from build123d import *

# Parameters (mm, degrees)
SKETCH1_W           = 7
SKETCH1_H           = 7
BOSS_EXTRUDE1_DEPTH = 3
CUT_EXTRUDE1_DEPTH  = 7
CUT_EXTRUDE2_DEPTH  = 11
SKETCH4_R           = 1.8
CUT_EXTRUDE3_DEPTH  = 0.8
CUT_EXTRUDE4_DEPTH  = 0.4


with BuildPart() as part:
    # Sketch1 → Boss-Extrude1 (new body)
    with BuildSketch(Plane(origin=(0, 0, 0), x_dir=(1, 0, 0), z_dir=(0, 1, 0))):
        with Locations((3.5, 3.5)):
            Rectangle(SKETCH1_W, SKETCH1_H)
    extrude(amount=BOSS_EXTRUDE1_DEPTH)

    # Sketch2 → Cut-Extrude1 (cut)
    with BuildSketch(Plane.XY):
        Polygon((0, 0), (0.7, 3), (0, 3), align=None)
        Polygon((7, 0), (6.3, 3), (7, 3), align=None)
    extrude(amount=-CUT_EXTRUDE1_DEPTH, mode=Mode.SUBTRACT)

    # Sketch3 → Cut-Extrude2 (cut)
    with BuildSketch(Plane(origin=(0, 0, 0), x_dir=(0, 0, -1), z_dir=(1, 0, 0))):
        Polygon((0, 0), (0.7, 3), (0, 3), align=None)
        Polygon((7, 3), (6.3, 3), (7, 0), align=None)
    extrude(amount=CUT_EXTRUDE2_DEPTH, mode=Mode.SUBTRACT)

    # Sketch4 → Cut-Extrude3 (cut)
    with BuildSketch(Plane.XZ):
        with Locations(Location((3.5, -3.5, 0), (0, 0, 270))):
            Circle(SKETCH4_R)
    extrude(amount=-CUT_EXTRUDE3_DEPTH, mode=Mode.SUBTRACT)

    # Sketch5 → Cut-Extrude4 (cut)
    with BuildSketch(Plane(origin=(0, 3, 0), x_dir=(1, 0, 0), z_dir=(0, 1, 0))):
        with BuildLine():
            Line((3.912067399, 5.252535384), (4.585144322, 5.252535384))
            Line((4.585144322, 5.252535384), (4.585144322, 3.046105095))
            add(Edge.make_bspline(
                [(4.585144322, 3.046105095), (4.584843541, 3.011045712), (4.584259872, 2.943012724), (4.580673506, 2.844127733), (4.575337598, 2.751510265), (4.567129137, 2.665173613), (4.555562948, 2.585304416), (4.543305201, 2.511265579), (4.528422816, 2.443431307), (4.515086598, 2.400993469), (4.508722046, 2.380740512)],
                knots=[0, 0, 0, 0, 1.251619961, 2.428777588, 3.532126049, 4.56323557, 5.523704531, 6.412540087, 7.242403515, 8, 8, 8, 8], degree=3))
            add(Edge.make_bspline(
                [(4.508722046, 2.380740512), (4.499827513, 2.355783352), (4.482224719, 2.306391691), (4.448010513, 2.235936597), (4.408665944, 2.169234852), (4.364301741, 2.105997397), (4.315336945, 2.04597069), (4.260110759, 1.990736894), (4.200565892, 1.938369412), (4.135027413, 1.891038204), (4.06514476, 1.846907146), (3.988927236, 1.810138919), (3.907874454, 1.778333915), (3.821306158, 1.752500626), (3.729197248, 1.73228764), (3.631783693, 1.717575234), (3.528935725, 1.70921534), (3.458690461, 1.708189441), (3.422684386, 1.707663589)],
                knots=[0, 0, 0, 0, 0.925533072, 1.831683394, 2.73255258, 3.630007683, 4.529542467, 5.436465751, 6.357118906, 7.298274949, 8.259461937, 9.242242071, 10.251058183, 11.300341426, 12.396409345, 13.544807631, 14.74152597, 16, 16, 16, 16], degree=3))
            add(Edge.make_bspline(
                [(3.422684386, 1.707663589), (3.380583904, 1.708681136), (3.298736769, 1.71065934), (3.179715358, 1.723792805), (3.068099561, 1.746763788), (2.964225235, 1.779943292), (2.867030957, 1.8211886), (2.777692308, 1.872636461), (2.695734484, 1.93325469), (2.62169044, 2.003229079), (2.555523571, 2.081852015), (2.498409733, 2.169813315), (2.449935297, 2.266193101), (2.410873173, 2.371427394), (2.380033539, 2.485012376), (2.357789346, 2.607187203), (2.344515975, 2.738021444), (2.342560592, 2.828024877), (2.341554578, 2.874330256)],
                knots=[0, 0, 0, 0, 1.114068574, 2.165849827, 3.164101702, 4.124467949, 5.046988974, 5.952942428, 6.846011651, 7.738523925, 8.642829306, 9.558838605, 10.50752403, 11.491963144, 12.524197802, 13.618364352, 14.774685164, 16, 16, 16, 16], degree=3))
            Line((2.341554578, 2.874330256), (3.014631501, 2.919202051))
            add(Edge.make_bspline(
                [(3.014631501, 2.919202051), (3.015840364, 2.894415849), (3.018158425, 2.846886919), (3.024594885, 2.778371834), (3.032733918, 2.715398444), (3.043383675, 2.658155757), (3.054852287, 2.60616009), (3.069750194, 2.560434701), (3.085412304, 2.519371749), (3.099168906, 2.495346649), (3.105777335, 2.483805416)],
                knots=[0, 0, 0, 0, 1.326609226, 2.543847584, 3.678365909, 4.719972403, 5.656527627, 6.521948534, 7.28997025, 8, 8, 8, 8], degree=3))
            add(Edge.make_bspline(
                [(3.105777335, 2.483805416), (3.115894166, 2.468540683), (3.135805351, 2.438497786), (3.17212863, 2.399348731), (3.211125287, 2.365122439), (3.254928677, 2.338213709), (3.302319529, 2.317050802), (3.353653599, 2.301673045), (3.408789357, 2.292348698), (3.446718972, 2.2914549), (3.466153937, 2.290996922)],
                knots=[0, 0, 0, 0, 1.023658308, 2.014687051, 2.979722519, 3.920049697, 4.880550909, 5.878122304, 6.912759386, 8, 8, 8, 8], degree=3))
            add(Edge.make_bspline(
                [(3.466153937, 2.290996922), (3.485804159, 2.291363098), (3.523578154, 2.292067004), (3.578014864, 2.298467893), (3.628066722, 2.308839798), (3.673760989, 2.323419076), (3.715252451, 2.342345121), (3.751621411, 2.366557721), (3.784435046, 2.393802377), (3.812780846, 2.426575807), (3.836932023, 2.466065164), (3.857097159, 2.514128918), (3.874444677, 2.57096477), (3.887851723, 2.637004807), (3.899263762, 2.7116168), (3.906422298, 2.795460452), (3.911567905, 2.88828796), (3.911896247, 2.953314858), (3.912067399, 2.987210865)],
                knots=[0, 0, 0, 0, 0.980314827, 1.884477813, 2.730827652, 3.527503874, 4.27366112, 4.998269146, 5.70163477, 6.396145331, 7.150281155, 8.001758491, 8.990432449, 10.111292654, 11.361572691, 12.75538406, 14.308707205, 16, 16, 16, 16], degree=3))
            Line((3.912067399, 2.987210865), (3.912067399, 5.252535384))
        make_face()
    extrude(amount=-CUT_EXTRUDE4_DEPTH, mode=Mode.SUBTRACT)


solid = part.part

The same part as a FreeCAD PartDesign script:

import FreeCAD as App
import Part
import Sketcher

V = App.Vector
Q = App.Units.Quantity


def add_polygon(sketch, points):
    """Adds a closed chain of lines whose ends are joined by coincident constraints."""
    first, n = sketch.GeometryCount, len(points)
    for a, b in zip(points, points[1:] + points[:1]):
        sketch.addGeometry(Part.LineSegment(App.Vector(*a, 0), App.Vector(*b, 0)), False)
    for i in range(n):
        sketch.addConstraint(Sketcher.Constraint("Coincident", first + i, 2, first + (i + 1) % n, 1))

doc = App.newDocument("Part")
body = doc.addObject("PartDesign::Body", "Body")

# Sketch on XZ plane
sketch1 = doc.addObject("Sketcher::SketchObject", "Sketch")
body.addObject(sketch1)
sketch1.AttachmentSupport = (doc.XZ_Plane, [""])
sketch1.MapMode = "FlatFace"
add_polygon(sketch1, [(0, -7), (0, 0), (7, 0), (7, -7)])  # lines 0-3
sketch1.addConstraint([
    Sketcher.Constraint("Vertical", 0),
    Sketcher.Constraint("Horizontal", 1),
    Sketcher.Constraint("Vertical", 2),
    Sketcher.Constraint("Horizontal", 3),
    Sketcher.Constraint("Coincident", 0, 2, -1, 1),
    Sketcher.Constraint("Equal", 3, 0),
    Sketcher.Constraint("DistanceX", 1, 1, 1, 2, Q("7 mm")),
])
pad1 = doc.addObject("PartDesign::Pad", "Pad")
body.addObject(pad1)
pad1.Profile = sketch1
pad1.Length = 3
pad1.Reversed = True

# Sketch on XY plane
sketch2 = doc.addObject("Sketcher::SketchObject", "Sketch001")
body.addObject(sketch2)
sketch2.AttachmentSupport = (doc.XY_Plane, [""])
sketch2.MapMode = "FlatFace"
add_polygon(sketch2, [(0, 0), (0.7, 3), (0, 3)])  # lines 0-2
add_polygon(sketch2, [(6.3, 3), (7, 0), (7, 3)])  # lines 3-5
sketch2.addConstraint([
    Sketcher.Constraint("Horizontal", 1),
    Sketcher.Constraint("Vertical", 2),
    Sketcher.Constraint("Vertical", 4),
    Sketcher.Constraint("Horizontal", 5),
    Sketcher.Constraint("Coincident", 2, 2, -1, 1),
    Sketcher.Constraint("PointOnObject", 3, 2, -1),
    Sketcher.Constraint("Horizontal", 1, 2, 4, 2),
    Sketcher.Constraint("Equal", 1, 5),
    Sketcher.Constraint("DistanceY", 2, 2, 2, 1, Q("3 mm")),
    Sketcher.Constraint("DistanceX", 1, 2, 1, 1, Q("0.7 mm")),
    Sketcher.Constraint("DistanceX", -1, 1, 3, 2, Q("7 mm")),
])
pocket1 = doc.addObject("PartDesign::Pocket", "Pocket")
body.addObject(pocket1)
pocket1.Profile = sketch2
pocket1.Length = 7

# Sketch on YZ plane
sketch3 = doc.addObject("Sketcher::SketchObject", "Sketch002")
body.addObject(sketch3)
sketch3.AttachmentSupport = (doc.YZ_Plane, [""])
sketch3.MapMode = "FlatFace"
add_polygon(sketch3, [(0, 0), (3, -0.7), (3, 0)])  # lines 0-2
add_polygon(sketch3, [(3, -7), (3, -6.3), (0, -7)])  # lines 3-5
sketch3.addConstraint([
    Sketcher.Constraint("Vertical", 1),
    Sketcher.Constraint("Horizontal", 2),
    Sketcher.Constraint("Vertical", 3),
    Sketcher.Constraint("Horizontal", 5),
    Sketcher.Constraint("Coincident", 2, 2, -1, 1),
    Sketcher.Constraint("PointOnObject", 4, 2, -2),
    Sketcher.Constraint("Vertical", 1, 2, 3, 2),
    Sketcher.Constraint("Equal", 1, 3),
    Sketcher.Constraint("DistanceX", 2, 2, 2, 1, Q("3 mm")),
    Sketcher.Constraint("DistanceY", 1, 1, 1, 2, Q("0.7 mm")),
    Sketcher.Constraint("DistanceY", 4, 2, -1, 1, Q("7 mm")),
])
pocket2 = doc.addObject("PartDesign::Pocket", "Pocket001")
body.addObject(pocket2)
pocket2.Profile = sketch3
pocket2.Length = 11
pocket2.Reversed = True

# Sketch on XZ plane
sketch4 = doc.addObject("Sketcher::SketchObject", "Sketch003")
body.addObject(sketch4)
sketch4.AttachmentSupport = (doc.XZ_Plane, [""])
sketch4.MapMode = "FlatFace"
sketch4.addGeometry(Part.Circle(V(3.5, -3.5, 0), V(0, 0, 1), 1.8), False)
sketch4.addConstraint([
    Sketcher.Constraint("Diameter", 0, Q("3.6 mm")),
    Sketcher.Constraint("DistanceX", -1, 1, 0, 3, Q("3.5 mm")),
    Sketcher.Constraint("DistanceY", 0, 3, -1, 1, Q("3.5 mm")),
])
pocket3 = doc.addObject("PartDesign::Pocket", "Pocket002")
body.addObject(pocket3)
pocket3.Profile = sketch4
pocket3.Length = 0.8

# Sketch on XZ plane
sketch5 = doc.addObject("Sketcher::SketchObject", "Sketch004")
body.addObject(sketch5)
sketch5.AttachmentSupport = (doc.XZ_Plane, [""])
sketch5.MapMode = "FlatFace"
sketch5.AttachmentOffset = App.Placement(V(0, 0, -3), App.Rotation())
sketch5.addGeometry([
    Part.LineSegment(V(4.585144, -5.252535, 0), V(3.912067, -5.252535, 0)),  # 0
    Part.LineSegment(V(3.912067, -5.252535, 0), V(3.912067, -2.987211, 0)),  # 1
    Part.BSplineCurve([V(3.466154, -2.290997, 0), V(3.485804, -2.291363, 0), V(3.523578, -2.292067, 0), V(3.578015, -2.298468, 0), V(3.628067, -2.30884, 0), V(3.673761, -2.323419, 0), V(3.715252, -2.342345, 0), V(3.751621, -2.366558, 0), V(3.784435, -2.393802, 0), V(3.812781, -2.426576, 0), V(3.836932, -2.466065, 0), V(3.857097, -2.514129, 0), V(3.874445, -2.570965, 0), V(3.887852, -2.637005, 0), V(3.899264, -2.711617, 0), V(3.906422, -2.79546, 0), V(3.911568, -2.888288, 0), V(3.911896, -2.953315, 0), V(3.912067, -2.987211, 0)], [4, 1, 1, 1, 1, 1, 1, 1, 1, 1, 1, 1, 1, 1, 1, 1, 4], [0, 0.980314827, 1.884477813, 2.730827652, 3.527503874, 4.27366112, 4.998269146, 5.70163477, 6.396145331, 7.150281155, 8.001758491, 8.990432449, 10.111292654, 11.361572691, 12.75538406, 14.308707205, 16], False, 3, [1, 1, 1, 1, 1, 1, 1, 1, 1, 1, 1, 1, 1, 1, 1, 1, 1, 1, 1], False),  # 2
    Part.BSplineCurve([V(3.105777, -2.483805, 0), V(3.115894, -2.468541, 0), V(3.135805, -2.438498, 0), V(3.172129, -2.399349, 0), V(3.211125, -2.365122, 0), V(3.254929, -2.338214, 0), V(3.30232, -2.317051, 0), V(3.353654, -2.301673, 0), V(3.408789, -2.292349, 0), V(3.446719, -2.291455, 0), V(3.466154, -2.290997, 0)], [4, 1, 1, 1, 1, 1, 1, 1, 4], [0, 1.023658308, 2.014687051, 2.979722519, 3.920049697, 4.880550909, 5.878122304, 6.912759386, 8], False, 3, [1, 1, 1, 1, 1, 1, 1, 1, 1, 1, 1], False),  # 3
    Part.BSplineCurve([V(3.014632, -2.919202, 0), V(3.01584, -2.894416, 0), V(3.018158, -2.846887, 0), V(3.024595, -2.778372, 0), V(3.032734, -2.715398, 0), V(3.043384, -2.658156, 0), V(3.054852, -2.60616, 0), V(3.06975, -2.560435, 0), V(3.085412, -2.519372, 0), V(3.099169, -2.495347, 0), V(3.105777, -2.483805, 0)], [4, 1, 1, 1, 1, 1, 1, 1, 4], [0, 1.326609226, 2.543847584, 3.678365909, 4.719972403, 5.656527627, 6.521948534, 7.28997025, 8], False, 3, [1, 1, 1, 1, 1, 1, 1, 1, 1, 1, 1], False),  # 4
    Part.LineSegment(V(3.014632, -2.919202, 0), V(2.341555, -2.87433, 0)),  # 5
    Part.BSplineCurve([V(3.422684, -1.707664, 0), V(3.380584, -1.708681, 0), V(3.298737, -1.710659, 0), V(3.179715, -1.723793, 0), V(3.0681, -1.746764, 0), V(2.964225, -1.779943, 0), V(2.867031, -1.821189, 0), V(2.777692, -1.872636, 0), V(2.695734, -1.933255, 0), V(2.62169, -2.003229, 0), V(2.555524, -2.081852, 0), V(2.49841, -2.169813, 0), V(2.449935, -2.266193, 0), V(2.410873, -2.371427, 0), V(2.380034, -2.485012, 0), V(2.357789, -2.607187, 0), V(2.344516, -2.738021, 0), V(2.342561, -2.828025, 0), V(2.341555, -2.87433, 0)], [4, 1, 1, 1, 1, 1, 1, 1, 1, 1, 1, 1, 1, 1, 1, 1, 4], [0, 1.114068574, 2.165849827, 3.164101702, 4.124467949, 5.046988974, 5.952942428, 6.846011651, 7.738523925, 8.642829306, 9.558838605, 10.50752403, 11.491963144, 12.524197802, 13.618364352, 14.774685164, 16], False, 3, [1, 1, 1, 1, 1, 1, 1, 1, 1, 1, 1, 1, 1, 1, 1, 1, 1, 1, 1], False),  # 6
    Part.BSplineCurve([V(4.508722, -2.380741, 0), V(4.499828, -2.355783, 0), V(4.482225, -2.306392, 0), V(4.448011, -2.235937, 0), V(4.408666, -2.169235, 0), V(4.364302, -2.105997, 0), V(4.315337, -2.045971, 0), V(4.260111, -1.990737, 0), V(4.200566, -1.938369, 0), V(4.135027, -1.891038, 0), V(4.065145, -1.846907, 0), V(3.988927, -1.810139, 0), V(3.907874, -1.778334, 0), V(3.821306, -1.752501, 0), V(3.729197, -1.732288, 0), V(3.631784, -1.717575, 0), V(3.528936, -1.709215, 0), V(3.45869, -1.708189, 0), V(3.422684, -1.707664, 0)], [4, 1, 1, 1, 1, 1, 1, 1, 1, 1, 1, 1, 1, 1, 1, 1, 4], [0, 0.925533072, 1.831683394, 2.73255258, 3.630007683, 4.529542467, 5.436465751, 6.357118906, 7.298274949, 8.259461937, 9.242242071, 10.251058183, 11.300341426, 12.396409345, 13.544807631, 14.74152597, 16], False, 3, [1, 1, 1, 1, 1, 1, 1, 1, 1, 1, 1, 1, 1, 1, 1, 1, 1, 1, 1], False),  # 7
    Part.BSplineCurve([V(4.585144, -3.046105, 0), V(4.584844, -3.011046, 0), V(4.58426, -2.943013, 0), V(4.580674, -2.844128, 0), V(4.575338, -2.75151, 0), V(4.567129, -2.665174, 0), V(4.555563, -2.585304, 0), V(4.543305, -2.511266, 0), V(4.528423, -2.443431, 0), V(4.515087, -2.400993, 0), V(4.508722, -2.380741, 0)], [4, 1, 1, 1, 1, 1, 1, 1, 4], [0, 1.251619961, 2.428777588, 3.532126049, 4.56323557, 5.523704531, 6.412540087, 7.242403515, 8], False, 3, [1, 1, 1, 1, 1, 1, 1, 1, 1, 1, 1], False),  # 8
    Part.LineSegment(V(4.585144, -3.046105, 0), V(4.585144, -5.252535, 0)),  # 9
], False)
sketch5.addConstraint([
    Sketcher.Constraint("Block", 2),
    Sketcher.Constraint("Block", 3),
    Sketcher.Constraint("Block", 4),
    Sketcher.Constraint("Block", 6),
    Sketcher.Constraint("Block", 7),
    Sketcher.Constraint("Block", 8),
    Sketcher.Constraint("Coincident", 0, 2, 1, 1),
    Sketcher.Constraint("Coincident", 1, 2, 2, 2),
    Sketcher.Constraint("Coincident", 4, 1, 5, 1),
    Sketcher.Constraint("Coincident", 5, 2, 6, 2),
    Sketcher.Constraint("Coincident", 8, 1, 9, 1),
    Sketcher.Constraint("Coincident", 9, 2, 0, 1),
    Sketcher.Constraint("Horizontal", 0),
    Sketcher.Constraint("Vertical", 1),
    Sketcher.Constraint("Vertical", 9),
    Sketcher.Constraint("DistanceY", 9, 2, 9, 1, Q("2.20643 mm")),
])
pocket4 = doc.addObject("PartDesign::Pocket", "Pocket003")
body.addObject(pocket4)
pocket4.Profile = sketch5
pocket4.Length = 0.4
pocket4.Reversed = True

doc.recompute()
